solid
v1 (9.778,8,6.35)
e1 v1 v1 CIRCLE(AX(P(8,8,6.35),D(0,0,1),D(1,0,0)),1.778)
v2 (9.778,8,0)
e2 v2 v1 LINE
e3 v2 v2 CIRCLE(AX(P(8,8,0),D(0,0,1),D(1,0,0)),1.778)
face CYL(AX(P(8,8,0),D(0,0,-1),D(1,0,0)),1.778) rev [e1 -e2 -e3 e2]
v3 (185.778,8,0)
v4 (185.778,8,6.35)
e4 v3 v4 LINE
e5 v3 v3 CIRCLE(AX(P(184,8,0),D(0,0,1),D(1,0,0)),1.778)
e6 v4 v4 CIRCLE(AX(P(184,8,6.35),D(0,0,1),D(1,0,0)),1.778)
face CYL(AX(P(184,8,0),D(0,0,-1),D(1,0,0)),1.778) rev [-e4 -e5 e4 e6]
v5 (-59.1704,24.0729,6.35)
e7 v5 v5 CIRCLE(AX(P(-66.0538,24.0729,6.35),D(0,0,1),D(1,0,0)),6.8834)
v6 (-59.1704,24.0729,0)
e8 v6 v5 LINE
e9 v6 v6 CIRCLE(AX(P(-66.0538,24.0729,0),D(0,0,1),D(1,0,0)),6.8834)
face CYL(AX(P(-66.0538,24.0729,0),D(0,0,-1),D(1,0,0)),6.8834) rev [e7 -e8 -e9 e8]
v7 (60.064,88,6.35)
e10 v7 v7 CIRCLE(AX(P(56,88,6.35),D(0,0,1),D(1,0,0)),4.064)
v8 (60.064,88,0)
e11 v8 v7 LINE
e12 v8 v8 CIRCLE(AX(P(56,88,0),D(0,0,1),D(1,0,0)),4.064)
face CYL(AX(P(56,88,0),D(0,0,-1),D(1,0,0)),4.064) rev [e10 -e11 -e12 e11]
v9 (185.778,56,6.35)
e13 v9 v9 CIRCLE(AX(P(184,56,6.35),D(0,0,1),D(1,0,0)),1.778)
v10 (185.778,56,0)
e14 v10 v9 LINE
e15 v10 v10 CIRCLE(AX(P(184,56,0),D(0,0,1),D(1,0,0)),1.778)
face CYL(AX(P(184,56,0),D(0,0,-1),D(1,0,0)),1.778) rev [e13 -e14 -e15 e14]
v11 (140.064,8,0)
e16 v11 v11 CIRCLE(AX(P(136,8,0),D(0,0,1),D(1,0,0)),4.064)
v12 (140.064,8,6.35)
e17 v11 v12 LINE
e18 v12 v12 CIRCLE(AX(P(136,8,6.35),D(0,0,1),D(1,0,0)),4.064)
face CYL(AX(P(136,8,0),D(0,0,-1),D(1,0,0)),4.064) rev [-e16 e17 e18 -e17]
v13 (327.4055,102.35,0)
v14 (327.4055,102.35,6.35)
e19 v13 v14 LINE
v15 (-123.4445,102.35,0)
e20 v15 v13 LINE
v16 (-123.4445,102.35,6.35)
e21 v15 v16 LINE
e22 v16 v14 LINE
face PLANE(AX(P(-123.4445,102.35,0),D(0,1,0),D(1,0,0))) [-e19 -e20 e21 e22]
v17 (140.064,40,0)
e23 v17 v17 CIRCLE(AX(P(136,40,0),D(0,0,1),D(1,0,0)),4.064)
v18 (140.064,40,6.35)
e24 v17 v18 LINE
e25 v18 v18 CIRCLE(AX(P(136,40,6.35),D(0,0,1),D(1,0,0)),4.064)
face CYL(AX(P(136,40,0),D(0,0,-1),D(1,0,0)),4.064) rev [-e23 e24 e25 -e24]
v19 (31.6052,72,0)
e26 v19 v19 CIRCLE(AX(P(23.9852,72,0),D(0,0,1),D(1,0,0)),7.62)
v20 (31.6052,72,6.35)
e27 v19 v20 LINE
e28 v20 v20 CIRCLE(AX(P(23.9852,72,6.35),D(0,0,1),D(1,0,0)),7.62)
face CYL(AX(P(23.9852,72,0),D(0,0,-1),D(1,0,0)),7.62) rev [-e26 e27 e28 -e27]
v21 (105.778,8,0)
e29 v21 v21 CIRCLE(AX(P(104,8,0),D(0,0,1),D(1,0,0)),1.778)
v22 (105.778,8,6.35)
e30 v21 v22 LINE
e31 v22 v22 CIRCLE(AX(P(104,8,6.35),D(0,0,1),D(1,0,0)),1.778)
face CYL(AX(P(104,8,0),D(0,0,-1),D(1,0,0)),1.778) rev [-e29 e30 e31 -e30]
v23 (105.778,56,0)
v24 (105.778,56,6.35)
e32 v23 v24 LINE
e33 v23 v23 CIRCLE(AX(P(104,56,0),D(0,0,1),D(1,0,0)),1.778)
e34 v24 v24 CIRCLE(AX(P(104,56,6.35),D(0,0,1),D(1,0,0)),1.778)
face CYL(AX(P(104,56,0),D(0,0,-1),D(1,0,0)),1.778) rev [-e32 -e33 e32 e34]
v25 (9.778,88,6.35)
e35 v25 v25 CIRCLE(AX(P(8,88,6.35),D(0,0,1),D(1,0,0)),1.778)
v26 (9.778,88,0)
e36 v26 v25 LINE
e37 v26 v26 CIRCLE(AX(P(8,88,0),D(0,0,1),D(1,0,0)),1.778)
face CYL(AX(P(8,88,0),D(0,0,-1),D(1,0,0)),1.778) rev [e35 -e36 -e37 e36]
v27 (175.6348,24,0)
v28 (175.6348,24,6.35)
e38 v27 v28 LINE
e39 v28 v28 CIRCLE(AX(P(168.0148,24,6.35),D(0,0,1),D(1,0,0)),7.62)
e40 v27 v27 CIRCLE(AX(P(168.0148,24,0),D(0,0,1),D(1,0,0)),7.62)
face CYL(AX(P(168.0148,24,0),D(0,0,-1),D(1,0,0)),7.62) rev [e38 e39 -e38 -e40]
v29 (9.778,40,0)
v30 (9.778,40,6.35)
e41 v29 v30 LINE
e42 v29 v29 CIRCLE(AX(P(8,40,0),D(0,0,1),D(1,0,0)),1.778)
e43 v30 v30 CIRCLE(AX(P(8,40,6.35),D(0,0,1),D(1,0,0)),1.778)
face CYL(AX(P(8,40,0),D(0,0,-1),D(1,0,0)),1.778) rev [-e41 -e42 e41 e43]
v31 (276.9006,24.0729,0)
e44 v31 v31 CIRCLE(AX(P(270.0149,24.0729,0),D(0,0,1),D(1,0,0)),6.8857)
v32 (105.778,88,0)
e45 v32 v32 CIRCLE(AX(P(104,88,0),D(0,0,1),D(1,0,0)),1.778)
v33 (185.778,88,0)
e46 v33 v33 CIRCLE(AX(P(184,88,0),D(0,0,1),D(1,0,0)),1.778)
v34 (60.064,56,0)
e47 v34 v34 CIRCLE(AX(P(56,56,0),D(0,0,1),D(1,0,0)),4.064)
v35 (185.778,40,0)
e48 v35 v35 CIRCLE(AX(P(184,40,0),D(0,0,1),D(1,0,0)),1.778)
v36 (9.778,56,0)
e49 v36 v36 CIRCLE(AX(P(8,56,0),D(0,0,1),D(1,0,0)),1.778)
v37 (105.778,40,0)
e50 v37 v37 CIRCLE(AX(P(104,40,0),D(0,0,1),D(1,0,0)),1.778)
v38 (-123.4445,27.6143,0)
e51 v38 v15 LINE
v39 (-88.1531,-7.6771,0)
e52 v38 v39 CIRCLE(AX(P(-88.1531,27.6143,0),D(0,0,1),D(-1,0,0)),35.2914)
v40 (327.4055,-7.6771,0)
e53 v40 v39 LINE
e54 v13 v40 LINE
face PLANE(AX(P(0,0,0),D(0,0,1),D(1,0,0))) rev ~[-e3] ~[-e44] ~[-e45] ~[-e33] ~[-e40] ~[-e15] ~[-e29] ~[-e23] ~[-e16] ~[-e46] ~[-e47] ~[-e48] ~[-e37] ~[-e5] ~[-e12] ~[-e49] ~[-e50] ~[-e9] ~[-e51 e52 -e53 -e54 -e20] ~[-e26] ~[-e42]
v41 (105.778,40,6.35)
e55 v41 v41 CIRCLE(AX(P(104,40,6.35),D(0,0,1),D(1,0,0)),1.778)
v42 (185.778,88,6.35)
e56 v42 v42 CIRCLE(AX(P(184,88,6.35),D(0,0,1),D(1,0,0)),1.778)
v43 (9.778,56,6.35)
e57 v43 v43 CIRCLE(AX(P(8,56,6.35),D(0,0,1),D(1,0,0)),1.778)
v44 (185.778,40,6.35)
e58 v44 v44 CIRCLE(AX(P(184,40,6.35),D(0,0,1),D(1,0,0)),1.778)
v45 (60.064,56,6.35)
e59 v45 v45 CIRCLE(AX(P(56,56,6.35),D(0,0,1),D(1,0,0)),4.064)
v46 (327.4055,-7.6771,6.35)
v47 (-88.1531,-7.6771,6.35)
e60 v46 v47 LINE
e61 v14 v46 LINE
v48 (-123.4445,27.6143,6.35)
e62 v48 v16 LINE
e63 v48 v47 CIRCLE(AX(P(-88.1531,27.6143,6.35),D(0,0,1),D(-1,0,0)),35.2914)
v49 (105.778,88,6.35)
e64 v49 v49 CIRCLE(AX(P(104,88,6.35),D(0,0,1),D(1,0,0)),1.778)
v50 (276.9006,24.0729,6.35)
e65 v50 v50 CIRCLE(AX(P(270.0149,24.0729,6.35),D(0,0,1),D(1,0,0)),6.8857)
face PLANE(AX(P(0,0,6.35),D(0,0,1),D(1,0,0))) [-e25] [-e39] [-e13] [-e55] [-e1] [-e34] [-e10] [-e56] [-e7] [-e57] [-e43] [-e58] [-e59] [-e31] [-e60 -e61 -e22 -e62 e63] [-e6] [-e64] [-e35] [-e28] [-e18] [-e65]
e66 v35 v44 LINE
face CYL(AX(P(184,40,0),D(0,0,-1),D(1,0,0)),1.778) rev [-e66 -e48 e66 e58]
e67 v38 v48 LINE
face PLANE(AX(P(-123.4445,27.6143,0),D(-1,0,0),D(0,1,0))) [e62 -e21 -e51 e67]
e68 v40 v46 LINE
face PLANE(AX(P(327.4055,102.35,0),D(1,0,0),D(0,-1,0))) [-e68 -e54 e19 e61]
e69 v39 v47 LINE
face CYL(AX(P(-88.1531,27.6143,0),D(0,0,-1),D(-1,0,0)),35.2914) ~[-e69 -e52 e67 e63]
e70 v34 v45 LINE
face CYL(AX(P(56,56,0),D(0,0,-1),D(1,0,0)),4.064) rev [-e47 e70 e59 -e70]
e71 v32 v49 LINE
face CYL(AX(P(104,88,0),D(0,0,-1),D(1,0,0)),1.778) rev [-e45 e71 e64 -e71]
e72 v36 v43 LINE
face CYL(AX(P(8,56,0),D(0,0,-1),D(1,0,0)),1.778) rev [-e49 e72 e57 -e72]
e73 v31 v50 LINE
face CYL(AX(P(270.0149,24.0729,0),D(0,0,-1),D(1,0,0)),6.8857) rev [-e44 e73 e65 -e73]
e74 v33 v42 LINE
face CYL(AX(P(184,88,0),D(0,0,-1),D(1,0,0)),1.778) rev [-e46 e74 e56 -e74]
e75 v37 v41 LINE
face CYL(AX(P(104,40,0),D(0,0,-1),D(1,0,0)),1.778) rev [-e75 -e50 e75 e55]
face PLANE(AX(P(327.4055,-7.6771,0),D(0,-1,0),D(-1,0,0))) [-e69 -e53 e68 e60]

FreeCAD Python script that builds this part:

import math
import FreeCAD as App
import Part
import Sketcher
Q = App.Units.Quantity

doc = App.newDocument("Part")
body = doc.addObject("PartDesign::Body", "Body")

sketch1 = body.newObject("Sketcher::SketchObject", "Sketch")
sketch1.AttachmentSupport = (doc.getObject("XY_Plane"), [""])
sketch1.MapMode = "FlatFace"
sketch1.addGeometry([
    Part.LineSegment(App.Vector(327.4, 102.3, 0), App.Vector(-123.4, 102.3, 0)),
    Part.LineSegment(App.Vector(-123.4, 102.3, 0), App.Vector(-123.4, 27.6, 0)),
    Part.ArcOfCircle(Part.Circle(App.Vector(-88.2, 27.6, 0), App.Vector(0, 0, 1), 35.3), math.radians(180), math.radians(270)),
    Part.LineSegment(App.Vector(-88.2, -7.7, 0), App.Vector(327.4, -7.7, 0)),
    Part.LineSegment(App.Vector(327.4, -7.7, 0), App.Vector(327.4, 102.3, 0)),
    Part.Circle(App.Vector(8, 8, 0), App.Vector(0, 0, 1), 1.8),
    Part.Circle(App.Vector(-66.1, 24.1, 0), App.Vector(0, 0, 1), 6.9),
    Part.Circle(App.Vector(8, 40, 0), App.Vector(0, 0, 1), 1.8),
    Part.Circle(App.Vector(104, 8, 0), App.Vector(0, 0, 1), 1.8),
    Part.Circle(App.Vector(136, 8, 0), App.Vector(0, 0, 1), 4.1),
    Part.Circle(App.Vector(184, 8, 0), App.Vector(0, 0, 1), 1.8),
    Part.Circle(App.Vector(168, 24, 0), App.Vector(0, 0, 1), 7.6),
    Part.Circle(App.Vector(104, 40, 0), App.Vector(0, 0, 1), 1.8),
    Part.Circle(App.Vector(136, 40, 0), App.Vector(0, 0, 1), 4.1),
    Part.Circle(App.Vector(184, 40, 0), App.Vector(0, 0, 1), 1.8),
    Part.Circle(App.Vector(270, 24.1, 0), App.Vector(0, 0, 1), 6.9),
    Part.Circle(App.Vector(8, 56, 0), App.Vector(0, 0, 1), 1.8),
    Part.Circle(App.Vector(56, 56, 0), App.Vector(0, 0, 1), 4.1),
    Part.Circle(App.Vector(24, 72, 0), App.Vector(0, 0, 1), 7.6),
    Part.Circle(App.Vector(8, 88, 0), App.Vector(0, 0, 1), 1.8),
    Part.Circle(App.Vector(56, 88, 0), App.Vector(0, 0, 1), 4.1),
    Part.Circle(App.Vector(104, 56, 0), App.Vector(0, 0, 1), 1.8),
    Part.Circle(App.Vector(184, 56, 0), App.Vector(0, 0, 1), 1.8),
    Part.Circle(App.Vector(104, 88, 0), App.Vector(0, 0, 1), 1.8),
    Part.Circle(App.Vector(184, 88, 0), App.Vector(0, 0, 1), 1.8),
], False)
sketch1.addConstraint([
    Sketcher.Constraint("Coincident", 0, 2, 1, 1),
    Sketcher.Constraint("Tangent", 1, 2, 2, 1),
    Sketcher.Constraint("Tangent", 2, 2, 3, 1),
    Sketcher.Constraint("Coincident", 3, 2, 4, 1),
    Sketcher.Constraint("Coincident", 4, 2, 0, 1),
    Sketcher.Constraint("Horizontal", 0),
    Sketcher.Constraint("Vertical", 1),
    Sketcher.Constraint("Horizontal", 3),
    Sketcher.Constraint("Vertical", 4),
    Sketcher.Constraint("Equal", 5, 7),
    Sketcher.Constraint("Equal", 7, 8),
    Sketcher.Constraint("Equal", 8, 10),
    Sketcher.Constraint("Equal", 10, 12),
    Sketcher.Constraint("Equal", 9, 13),
    Sketcher.Constraint("Equal", 12, 14),
    Sketcher.Constraint("Equal", 14, 16),
    Sketcher.Constraint("Equal", 13, 17),
    Sketcher.Constraint("Equal", 11, 18),
    Sketcher.Constraint("Equal", 16, 19),
    Sketcher.Constraint("Equal", 17, 20),
    Sketcher.Constraint("Equal", 19, 21),
    Sketcher.Constraint("Equal", 21, 22),
    Sketcher.Constraint("Equal", 22, 23),
    Sketcher.Constraint("Equal", 23, 24),
    Sketcher.Constraint("Horizontal", 5, 3, 8, 3),
    Sketcher.Constraint("Horizontal", 8, 3, 9, 3),
    Sketcher.Constraint("Horizontal", 9, 3, 10, 3),
    Sketcher.Constraint("Horizontal", 7, 3, 12, 3),
    Sketcher.Constraint("Horizontal", 12, 3, 13, 3),
    Sketcher.Constraint("Horizontal", 13, 3, 14, 3),
    Sketcher.Constraint("Horizontal", 6, 3, 15, 3),
    Sketcher.Constraint("Horizontal", 16, 3, 17, 3),
    Sketcher.Constraint("Horizontal", 19, 3, 20, 3),
    Sketcher.Constraint("Horizontal", 17, 3, 21, 3),
    Sketcher.Constraint("Horizontal", 21, 3, 22, 3),
    Sketcher.Constraint("Horizontal", 20, 3, 23, 3),
    Sketcher.Constraint("Horizontal", 23, 3, 24, 3),
    Sketcher.Constraint("Vertical", 5, 3, 7, 3),
    Sketcher.Constraint("Vertical", 8, 3, 12, 3),
    Sketcher.Constraint("Vertical", 9, 3, 13, 3),
    Sketcher.Constraint("Vertical", 10, 3, 14, 3),
    Sketcher.Constraint("Vertical", 7, 3, 16, 3),
    Sketcher.Constraint("Vertical", 16, 3, 19, 3),
    Sketcher.Constraint("Vertical", 17, 3, 20, 3),
    Sketcher.Constraint("Vertical", 12, 3, 21, 3),
    Sketcher.Constraint("Vertical", 14, 3, 22, 3),
    Sketcher.Constraint("Vertical", 21, 3, 23, 3),
    Sketcher.Constraint("Vertical", 22, 3, 24, 3),
    Sketcher.Constraint("Diameter", 11, Q("0.6 in")),
    Sketcher.Constraint("Diameter", 5, Q("0.14 in")),
    Sketcher.Constraint("Diameter", 9, Q("0.32 in")),
    Sketcher.Constraint("Diameter", 6, Q("0.542 in")),
    Sketcher.Constraint("DistanceX", 0, 2, 0, 1, Q("17.75 in")),
    Sketcher.Constraint("Diameter", 15, 13.7714),
    Sketcher.Constraint("Radius", 2, 35.2914),
    Sketcher.Constraint("DistanceY", 2, 2, 6, 3, Q("1.25 in")),
    Sketcher.Constraint("DistanceY", 1, 2, 1, 1, 74.7357),
    Sketcher.Constraint("DistanceX", 2, 3, -1, 1, Q("3.4706 in")),
    Sketcher.Constraint("DistanceY", -1, 1, 7, 3, Q("1.5748 in")),
    Sketcher.Constraint("DistanceX", -1, 1, 8, 3, Q("4.0945 in")),
    Sketcher.Constraint("DistanceX", -1, 1, 10, 3, Q("7.2441 in")),
    Sketcher.Constraint("DistanceX", -1, 1, 15, 3, Q("10.6305 in")),
    Sketcher.Constraint("DistanceX", -1, 1, 18, 3, Q("0.9443 in")),
    Sketcher.Constraint("DistanceX", 6, 3, 5, 3, Q("2.9155 in")),
    Sketcher.Constraint("DistanceY", 5, 3, 6, 3, Q("0.6328 in")),
    Sketcher.Constraint("DistanceX", 5, 3, 11, 3, Q("6.2998 in")),
    Sketcher.Constraint("DistanceY", 5, 3, 19, 3, Q("3.1496 in")),
    Sketcher.Constraint("DistanceY", 16, 3, 0, 2, Q("1.8248 in")),
    Sketcher.Constraint("DistanceY", -1, 1, 2, 3, 27.6143),
    Sketcher.Constraint("DistanceX", -1, 1, 5, 3, 8.0),
    Sketcher.Constraint("DistanceX", -1, 1, 9, 3, 136.0),
    Sketcher.Constraint("DistanceY", -1, 1, 11, 3, 24.0),
    Sketcher.Constraint("DistanceX", -1, 1, 17, 3, 56.0),
    Sketcher.Constraint("DistanceY", -1, 1, 18, 3, 72.0),
])
pad1 = body.newObject("PartDesign::Pad", "Pad")
pad1.Profile = sketch1
pad1.Length = Q("0.25 in")

doc.recompute()
